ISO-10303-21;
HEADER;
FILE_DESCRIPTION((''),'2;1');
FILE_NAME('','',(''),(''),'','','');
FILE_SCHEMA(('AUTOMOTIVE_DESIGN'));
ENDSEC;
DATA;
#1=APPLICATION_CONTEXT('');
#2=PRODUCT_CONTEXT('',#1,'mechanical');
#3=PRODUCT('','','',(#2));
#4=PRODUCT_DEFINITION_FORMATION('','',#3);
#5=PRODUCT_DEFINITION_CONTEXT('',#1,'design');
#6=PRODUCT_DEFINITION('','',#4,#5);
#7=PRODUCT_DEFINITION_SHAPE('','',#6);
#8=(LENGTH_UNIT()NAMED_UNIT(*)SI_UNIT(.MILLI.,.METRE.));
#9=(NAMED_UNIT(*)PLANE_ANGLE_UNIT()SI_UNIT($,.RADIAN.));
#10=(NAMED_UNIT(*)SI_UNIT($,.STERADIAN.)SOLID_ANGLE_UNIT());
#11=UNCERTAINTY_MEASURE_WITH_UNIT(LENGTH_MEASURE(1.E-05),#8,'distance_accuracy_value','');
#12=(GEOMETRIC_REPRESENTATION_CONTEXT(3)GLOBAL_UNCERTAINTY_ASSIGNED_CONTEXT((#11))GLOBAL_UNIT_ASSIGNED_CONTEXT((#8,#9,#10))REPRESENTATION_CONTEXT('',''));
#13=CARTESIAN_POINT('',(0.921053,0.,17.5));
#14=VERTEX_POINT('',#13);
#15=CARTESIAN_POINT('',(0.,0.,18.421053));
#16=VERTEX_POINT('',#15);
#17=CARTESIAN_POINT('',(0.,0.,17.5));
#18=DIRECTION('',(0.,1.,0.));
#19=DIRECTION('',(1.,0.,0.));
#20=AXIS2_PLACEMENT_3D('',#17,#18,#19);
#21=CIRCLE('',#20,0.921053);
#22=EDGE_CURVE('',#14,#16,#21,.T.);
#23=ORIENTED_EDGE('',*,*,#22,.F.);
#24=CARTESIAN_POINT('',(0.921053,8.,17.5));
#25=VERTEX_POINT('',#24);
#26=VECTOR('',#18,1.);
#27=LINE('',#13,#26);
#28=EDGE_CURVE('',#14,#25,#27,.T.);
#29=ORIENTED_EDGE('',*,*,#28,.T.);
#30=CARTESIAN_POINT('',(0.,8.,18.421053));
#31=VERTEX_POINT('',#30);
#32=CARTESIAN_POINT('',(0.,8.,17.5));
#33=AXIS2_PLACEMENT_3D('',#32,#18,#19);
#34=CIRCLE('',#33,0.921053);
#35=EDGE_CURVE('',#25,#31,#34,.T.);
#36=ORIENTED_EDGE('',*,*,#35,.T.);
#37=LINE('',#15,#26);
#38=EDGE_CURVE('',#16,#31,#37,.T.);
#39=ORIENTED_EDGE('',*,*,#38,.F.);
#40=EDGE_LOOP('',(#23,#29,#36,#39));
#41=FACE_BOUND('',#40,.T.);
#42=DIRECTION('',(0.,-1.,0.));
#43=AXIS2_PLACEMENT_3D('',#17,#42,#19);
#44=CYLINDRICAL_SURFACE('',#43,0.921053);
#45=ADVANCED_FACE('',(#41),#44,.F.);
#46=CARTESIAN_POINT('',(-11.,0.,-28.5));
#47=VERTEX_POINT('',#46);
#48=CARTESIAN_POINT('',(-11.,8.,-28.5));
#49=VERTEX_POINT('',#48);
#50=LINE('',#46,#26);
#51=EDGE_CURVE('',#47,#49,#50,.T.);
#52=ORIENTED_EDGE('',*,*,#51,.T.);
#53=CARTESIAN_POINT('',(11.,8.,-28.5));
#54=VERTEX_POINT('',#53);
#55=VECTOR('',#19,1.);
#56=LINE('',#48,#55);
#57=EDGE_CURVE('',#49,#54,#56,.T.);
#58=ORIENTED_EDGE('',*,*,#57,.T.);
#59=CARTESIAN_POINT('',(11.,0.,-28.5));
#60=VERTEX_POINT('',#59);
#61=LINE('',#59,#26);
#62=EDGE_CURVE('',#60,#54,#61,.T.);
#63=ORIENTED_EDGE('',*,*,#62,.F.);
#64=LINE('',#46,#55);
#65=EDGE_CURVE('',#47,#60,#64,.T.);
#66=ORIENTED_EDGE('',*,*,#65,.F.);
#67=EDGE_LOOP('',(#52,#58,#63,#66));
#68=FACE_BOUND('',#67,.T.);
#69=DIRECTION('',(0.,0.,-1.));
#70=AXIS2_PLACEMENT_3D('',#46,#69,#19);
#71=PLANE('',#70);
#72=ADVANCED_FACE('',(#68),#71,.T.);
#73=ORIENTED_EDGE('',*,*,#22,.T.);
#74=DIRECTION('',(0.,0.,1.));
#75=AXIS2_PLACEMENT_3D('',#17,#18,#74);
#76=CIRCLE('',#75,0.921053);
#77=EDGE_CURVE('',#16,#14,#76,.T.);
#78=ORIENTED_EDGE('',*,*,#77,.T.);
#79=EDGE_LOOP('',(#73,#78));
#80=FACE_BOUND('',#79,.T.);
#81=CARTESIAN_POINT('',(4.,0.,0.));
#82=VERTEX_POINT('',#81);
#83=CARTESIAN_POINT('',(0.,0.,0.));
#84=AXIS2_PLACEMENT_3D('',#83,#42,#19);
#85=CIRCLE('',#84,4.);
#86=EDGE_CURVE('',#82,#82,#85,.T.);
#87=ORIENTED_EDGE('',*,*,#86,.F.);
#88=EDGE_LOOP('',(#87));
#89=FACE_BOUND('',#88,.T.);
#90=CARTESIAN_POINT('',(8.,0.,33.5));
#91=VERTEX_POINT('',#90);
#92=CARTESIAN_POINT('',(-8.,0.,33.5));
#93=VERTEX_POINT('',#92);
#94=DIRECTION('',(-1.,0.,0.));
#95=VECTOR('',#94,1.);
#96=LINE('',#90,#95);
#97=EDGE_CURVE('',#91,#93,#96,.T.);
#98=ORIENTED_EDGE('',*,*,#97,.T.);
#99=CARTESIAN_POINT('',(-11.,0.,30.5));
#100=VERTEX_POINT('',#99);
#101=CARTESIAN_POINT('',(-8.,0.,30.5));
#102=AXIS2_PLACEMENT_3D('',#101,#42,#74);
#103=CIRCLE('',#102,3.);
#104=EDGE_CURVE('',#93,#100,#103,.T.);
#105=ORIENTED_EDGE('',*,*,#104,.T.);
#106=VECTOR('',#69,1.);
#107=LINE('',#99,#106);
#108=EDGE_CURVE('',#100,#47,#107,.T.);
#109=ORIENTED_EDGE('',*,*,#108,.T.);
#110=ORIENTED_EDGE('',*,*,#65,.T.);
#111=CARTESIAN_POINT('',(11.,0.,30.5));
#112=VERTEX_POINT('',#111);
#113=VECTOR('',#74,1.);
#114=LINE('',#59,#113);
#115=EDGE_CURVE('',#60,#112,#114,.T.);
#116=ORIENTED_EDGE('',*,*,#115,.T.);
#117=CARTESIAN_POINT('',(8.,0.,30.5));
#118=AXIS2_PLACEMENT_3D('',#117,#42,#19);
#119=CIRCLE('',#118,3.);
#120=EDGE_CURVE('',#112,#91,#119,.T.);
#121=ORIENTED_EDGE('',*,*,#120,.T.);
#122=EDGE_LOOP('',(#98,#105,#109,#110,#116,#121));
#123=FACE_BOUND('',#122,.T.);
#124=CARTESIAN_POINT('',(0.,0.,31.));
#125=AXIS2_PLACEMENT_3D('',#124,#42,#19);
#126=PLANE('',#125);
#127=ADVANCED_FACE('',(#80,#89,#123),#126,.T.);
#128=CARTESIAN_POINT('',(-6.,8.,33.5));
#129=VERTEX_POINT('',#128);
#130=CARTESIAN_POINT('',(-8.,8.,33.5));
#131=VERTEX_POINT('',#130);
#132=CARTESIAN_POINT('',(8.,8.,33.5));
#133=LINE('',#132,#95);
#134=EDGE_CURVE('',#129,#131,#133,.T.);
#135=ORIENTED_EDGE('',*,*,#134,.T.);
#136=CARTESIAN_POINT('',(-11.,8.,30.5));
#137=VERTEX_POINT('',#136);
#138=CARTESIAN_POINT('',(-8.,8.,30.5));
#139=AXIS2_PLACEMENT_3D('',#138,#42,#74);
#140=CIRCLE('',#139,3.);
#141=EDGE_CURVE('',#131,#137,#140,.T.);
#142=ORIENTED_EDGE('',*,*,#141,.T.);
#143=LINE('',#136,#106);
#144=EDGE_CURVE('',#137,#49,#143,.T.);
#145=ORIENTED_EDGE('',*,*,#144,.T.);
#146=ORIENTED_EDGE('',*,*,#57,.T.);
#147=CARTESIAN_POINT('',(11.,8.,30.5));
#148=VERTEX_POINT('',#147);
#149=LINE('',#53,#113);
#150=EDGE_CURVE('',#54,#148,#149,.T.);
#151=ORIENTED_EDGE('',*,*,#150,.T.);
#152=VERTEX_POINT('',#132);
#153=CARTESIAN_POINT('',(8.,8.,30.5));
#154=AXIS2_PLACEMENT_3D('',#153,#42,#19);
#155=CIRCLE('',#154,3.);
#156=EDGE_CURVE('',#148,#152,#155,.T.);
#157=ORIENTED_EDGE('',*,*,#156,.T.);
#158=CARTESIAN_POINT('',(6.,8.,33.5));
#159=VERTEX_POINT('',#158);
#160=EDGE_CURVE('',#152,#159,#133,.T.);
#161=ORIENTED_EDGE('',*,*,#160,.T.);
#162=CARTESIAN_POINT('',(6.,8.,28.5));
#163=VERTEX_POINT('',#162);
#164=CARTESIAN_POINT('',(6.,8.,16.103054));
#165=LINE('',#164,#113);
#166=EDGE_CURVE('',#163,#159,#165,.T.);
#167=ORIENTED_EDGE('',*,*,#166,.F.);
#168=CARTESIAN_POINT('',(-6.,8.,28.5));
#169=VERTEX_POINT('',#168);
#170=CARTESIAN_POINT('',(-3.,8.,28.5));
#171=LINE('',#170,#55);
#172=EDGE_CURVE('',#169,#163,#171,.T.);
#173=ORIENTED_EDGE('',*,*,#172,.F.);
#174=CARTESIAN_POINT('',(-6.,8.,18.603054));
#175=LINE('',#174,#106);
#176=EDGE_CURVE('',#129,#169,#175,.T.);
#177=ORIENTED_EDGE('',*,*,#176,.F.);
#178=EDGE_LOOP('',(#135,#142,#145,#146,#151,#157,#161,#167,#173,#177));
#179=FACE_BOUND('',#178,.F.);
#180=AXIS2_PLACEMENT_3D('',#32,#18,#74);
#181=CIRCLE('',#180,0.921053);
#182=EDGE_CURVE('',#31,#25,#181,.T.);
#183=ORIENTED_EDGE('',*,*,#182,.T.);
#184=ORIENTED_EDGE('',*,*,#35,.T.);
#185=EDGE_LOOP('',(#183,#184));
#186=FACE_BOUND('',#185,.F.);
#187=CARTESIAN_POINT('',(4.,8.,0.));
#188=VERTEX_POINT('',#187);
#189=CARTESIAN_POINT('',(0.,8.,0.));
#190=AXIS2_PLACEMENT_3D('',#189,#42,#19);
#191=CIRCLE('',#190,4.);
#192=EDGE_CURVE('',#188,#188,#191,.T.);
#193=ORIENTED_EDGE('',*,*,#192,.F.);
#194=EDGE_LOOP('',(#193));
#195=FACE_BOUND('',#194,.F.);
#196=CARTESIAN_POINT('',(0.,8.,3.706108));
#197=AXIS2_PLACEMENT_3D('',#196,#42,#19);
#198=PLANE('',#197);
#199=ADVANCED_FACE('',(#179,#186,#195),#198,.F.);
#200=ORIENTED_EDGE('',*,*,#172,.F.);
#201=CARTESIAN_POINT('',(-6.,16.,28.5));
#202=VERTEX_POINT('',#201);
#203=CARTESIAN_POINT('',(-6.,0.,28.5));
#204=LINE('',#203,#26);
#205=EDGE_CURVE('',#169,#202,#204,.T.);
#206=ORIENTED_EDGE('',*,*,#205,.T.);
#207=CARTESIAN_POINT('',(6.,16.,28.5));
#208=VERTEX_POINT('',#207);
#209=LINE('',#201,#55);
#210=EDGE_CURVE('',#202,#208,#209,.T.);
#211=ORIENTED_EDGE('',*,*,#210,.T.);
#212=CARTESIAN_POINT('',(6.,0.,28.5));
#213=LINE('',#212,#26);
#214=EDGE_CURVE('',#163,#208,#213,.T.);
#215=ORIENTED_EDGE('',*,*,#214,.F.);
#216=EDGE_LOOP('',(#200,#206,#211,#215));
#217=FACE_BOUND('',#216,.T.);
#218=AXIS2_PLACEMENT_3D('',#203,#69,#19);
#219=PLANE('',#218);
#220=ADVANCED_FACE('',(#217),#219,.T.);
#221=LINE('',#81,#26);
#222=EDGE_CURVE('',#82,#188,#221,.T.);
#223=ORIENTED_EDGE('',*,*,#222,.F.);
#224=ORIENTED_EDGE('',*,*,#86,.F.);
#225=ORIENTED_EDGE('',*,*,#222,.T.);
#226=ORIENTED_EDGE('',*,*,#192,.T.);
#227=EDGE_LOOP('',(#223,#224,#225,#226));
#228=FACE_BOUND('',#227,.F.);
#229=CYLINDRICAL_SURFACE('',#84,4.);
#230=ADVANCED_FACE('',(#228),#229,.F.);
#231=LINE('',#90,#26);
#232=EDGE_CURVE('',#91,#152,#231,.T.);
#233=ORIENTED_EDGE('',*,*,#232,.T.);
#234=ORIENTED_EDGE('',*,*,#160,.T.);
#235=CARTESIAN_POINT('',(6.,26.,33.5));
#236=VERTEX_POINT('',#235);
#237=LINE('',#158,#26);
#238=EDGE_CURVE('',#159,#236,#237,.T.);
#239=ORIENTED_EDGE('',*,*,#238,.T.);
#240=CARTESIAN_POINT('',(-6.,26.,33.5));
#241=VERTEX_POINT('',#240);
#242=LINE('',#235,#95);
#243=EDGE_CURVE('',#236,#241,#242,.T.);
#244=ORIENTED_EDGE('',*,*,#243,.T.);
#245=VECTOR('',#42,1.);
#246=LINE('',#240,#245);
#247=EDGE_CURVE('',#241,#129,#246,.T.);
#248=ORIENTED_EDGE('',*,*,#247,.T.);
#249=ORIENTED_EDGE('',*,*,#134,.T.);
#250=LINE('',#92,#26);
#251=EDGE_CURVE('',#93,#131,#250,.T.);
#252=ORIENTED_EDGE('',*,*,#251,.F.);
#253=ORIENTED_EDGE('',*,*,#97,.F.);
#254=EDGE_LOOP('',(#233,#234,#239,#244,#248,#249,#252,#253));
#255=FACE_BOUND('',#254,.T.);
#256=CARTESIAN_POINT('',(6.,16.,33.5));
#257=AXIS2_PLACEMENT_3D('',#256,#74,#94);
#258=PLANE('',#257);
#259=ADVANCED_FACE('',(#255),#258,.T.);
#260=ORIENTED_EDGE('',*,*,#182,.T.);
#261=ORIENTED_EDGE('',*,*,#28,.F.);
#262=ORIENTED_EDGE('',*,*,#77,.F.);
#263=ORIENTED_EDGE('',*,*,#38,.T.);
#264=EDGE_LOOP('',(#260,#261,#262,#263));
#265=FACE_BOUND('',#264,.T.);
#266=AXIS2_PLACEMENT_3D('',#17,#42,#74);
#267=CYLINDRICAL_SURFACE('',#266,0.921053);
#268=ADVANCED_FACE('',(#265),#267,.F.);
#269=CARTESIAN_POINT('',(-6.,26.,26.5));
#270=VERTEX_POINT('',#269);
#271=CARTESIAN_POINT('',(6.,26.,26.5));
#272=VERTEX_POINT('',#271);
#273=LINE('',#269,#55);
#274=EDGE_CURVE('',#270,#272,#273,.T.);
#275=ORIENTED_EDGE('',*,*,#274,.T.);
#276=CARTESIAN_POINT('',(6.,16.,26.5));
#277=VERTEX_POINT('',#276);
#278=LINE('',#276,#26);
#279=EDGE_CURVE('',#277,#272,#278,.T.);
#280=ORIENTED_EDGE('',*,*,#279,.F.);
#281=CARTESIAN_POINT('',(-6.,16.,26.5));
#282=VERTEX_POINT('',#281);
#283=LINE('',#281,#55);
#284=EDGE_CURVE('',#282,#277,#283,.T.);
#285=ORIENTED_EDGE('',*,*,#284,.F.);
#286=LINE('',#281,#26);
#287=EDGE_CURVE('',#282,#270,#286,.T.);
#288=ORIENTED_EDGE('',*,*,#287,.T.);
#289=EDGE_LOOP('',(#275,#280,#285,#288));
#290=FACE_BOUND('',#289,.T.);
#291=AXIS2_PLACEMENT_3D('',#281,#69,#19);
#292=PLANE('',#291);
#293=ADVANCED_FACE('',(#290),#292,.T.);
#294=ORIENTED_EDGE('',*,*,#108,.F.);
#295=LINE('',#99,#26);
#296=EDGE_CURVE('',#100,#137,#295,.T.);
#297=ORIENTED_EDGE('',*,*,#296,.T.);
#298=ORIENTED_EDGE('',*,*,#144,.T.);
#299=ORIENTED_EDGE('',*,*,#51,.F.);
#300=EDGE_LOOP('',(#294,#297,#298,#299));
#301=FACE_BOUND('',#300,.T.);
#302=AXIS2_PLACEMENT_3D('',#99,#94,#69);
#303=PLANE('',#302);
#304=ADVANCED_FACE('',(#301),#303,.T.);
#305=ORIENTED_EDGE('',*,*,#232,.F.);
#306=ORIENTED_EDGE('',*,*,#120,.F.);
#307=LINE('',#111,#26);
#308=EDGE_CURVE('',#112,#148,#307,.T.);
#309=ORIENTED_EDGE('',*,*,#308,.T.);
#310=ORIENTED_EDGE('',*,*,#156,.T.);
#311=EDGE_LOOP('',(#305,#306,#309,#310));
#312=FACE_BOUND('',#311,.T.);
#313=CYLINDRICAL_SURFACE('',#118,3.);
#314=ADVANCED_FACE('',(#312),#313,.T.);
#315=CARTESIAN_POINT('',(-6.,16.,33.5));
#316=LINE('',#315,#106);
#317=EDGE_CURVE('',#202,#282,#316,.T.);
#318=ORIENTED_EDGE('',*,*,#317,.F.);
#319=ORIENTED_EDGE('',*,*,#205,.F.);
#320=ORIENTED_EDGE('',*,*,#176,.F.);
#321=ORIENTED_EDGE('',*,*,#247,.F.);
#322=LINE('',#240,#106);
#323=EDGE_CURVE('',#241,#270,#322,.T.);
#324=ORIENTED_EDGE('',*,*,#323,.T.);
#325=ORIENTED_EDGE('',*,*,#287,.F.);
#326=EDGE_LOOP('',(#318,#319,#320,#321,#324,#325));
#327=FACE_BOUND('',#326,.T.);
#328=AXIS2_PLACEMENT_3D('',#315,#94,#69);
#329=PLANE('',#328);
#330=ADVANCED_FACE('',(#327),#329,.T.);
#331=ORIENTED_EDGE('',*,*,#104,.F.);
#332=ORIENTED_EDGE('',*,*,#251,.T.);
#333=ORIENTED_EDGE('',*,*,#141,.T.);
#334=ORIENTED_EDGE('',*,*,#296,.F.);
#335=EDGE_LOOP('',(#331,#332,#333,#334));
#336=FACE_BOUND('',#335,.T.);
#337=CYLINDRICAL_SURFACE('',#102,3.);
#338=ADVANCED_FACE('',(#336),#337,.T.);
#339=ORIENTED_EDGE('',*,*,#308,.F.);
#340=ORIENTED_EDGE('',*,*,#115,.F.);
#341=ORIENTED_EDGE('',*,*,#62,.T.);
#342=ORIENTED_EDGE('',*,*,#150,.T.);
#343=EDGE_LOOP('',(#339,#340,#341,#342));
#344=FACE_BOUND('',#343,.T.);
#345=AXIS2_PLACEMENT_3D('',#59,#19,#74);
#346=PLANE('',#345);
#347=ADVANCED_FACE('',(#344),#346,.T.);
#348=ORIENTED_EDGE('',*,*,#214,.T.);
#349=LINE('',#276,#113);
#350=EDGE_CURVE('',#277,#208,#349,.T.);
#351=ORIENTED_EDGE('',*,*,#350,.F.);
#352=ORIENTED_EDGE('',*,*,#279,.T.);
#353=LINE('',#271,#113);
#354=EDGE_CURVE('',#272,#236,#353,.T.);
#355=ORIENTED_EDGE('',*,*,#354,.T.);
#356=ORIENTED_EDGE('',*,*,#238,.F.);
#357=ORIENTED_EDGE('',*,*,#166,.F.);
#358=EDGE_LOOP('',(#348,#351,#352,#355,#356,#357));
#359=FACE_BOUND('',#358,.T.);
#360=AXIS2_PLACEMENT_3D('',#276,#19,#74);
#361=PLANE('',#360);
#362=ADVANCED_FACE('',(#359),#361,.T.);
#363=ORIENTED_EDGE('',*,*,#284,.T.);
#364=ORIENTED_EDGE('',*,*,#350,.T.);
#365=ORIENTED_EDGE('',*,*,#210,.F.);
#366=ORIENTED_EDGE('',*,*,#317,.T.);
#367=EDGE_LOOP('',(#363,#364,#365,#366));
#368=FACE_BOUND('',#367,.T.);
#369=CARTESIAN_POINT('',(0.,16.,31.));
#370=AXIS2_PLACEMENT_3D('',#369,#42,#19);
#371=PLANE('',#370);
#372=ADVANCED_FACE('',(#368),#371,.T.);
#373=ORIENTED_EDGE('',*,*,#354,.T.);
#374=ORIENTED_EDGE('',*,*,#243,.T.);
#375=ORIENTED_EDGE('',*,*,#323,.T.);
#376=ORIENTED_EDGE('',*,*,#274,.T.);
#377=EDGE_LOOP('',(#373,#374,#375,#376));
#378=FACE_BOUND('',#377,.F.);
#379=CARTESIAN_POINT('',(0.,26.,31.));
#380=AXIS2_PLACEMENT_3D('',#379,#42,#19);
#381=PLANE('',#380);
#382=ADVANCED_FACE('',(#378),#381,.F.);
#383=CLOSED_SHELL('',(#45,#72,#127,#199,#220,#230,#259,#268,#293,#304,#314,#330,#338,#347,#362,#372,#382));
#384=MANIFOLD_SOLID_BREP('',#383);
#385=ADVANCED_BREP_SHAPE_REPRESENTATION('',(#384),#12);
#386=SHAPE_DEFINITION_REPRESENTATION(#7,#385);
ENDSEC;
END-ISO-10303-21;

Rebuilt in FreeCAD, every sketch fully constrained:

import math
import FreeCAD as App
import Part
import Sketcher

V = App.Vector
Q = App.Units.Quantity

doc = App.newDocument("Part")
body = doc.addObject("PartDesign::Body", "Body")

# Sketch on XZ plane
sketch1 = body.newObject("Sketcher::SketchObject", "Sketch")
sketch1.AttachmentSupport = (doc.getObject("XZ_Plane"), [""])
sketch1.MapMode = "FlatFace"
sketch1.addGeometry(Part.LineSegment(V(11, -28.5, 0), V(11, 30.5, 0)), False)
sketch1.addGeometry(Part.ArcOfCircle(Part.Circle(V(8, 30.5, 0), V(0, 0, 1), 3), math.radians(0), math.radians(90)), False)
sketch1.addGeometry(Part.LineSegment(V(8, 33.5, 0), V(-8, 33.5, 0)), False)
sketch1.addGeometry(Part.ArcOfCircle(Part.Circle(V(-8, 30.5, 0), V(0, 0, 1), 3), math.radians(90), math.radians(180)), False)
sketch1.addGeometry(Part.LineSegment(V(-11, 30.5, 0), V(-11, -28.5, 0)), False)
sketch1.addGeometry(Part.LineSegment(V(-11, -28.5, 0), V(11, -28.5, 0)), False)
sketch1.addGeometry(Part.Circle(V(0, 0, 0), V(0, 0, 1), 4), False)
sketch1.addGeometry(Part.ArcOfCircle(Part.Circle(V(0, 17.5, 0), V(0, 0, 1), 0.921053), math.radians(90), math.radians(360)), False)
sketch1.addGeometry(Part.ArcOfCircle(Part.Circle(V(0, 17.5, 0), V(0, 0, 1), 0.921053), math.radians(0), math.radians(90)), False)
sketch1.addConstraint(Sketcher.Constraint("Tangent", 0, 2, 1, 1))
sketch1.addConstraint(Sketcher.Constraint("Tangent", 1, 2, 2, 1))
sketch1.addConstraint(Sketcher.Constraint("Tangent", 2, 2, 3, 1))
sketch1.addConstraint(Sketcher.Constraint("Tangent", 3, 2, 4, 1))
sketch1.addConstraint(Sketcher.Constraint("Coincident", 4, 2, 5, 1))
sketch1.addConstraint(Sketcher.Constraint("Coincident", 5, 2, 0, 1))
sketch1.addConstraint(Sketcher.Constraint("Tangent", 7, 1, 8, 2))
sketch1.addConstraint(Sketcher.Constraint("Coincident", 8, 1, 7, 2))
sketch1.addConstraint(Sketcher.Constraint("Vertical", 0))
sketch1.addConstraint(Sketcher.Constraint("Horizontal", 2))
sketch1.addConstraint(Sketcher.Constraint("Vertical", 4))
sketch1.addConstraint(Sketcher.Constraint("Horizontal", 5))
sketch1.addConstraint(Sketcher.Constraint("Coincident", 6, 3, -1, 1))
sketch1.addConstraint(Sketcher.Constraint("Equal", 1, 3))
sketch1.addConstraint(Sketcher.Constraint("PointOnObject", 7, 3, -2))
sketch1.addConstraint(Sketcher.Constraint("PointOnObject", 7, 1, -2))
sketch1.addConstraint(Sketcher.Constraint("Horizontal", 7, 3, 8, 1))
sketch1.addConstraint(Sketcher.Constraint("Diameter", 6, Q("8 mm")))
sketch1.addConstraint(Sketcher.Constraint("Radius", 1, Q("3 mm")))
sketch1.addConstraint(Sketcher.Constraint("DistanceX", 2, 2, 2, 1, Q("16 mm")))
sketch1.addConstraint(Sketcher.Constraint("DistanceY", 0, 1, 0, 2, Q("59 mm")))
sketch1.addConstraint(Sketcher.Constraint("DistanceX", -1, 1, 1, 3, Q("8 mm")))
sketch1.addConstraint(Sketcher.Constraint("DistanceY", 7, 3, 1, 3, Q("13 mm")))
sketch1.addConstraint(Sketcher.Constraint("DistanceY", -1, 1, 1, 3, Q("30.5 mm")))
sketch1.addConstraint(Sketcher.Constraint("Radius", 7, Q("0.921053 mm")))
pad1 = body.newObject("PartDesign::Pad", "Pad")
pad1.Profile = sketch1
pad1.Length = 8
pad1.Reversed = True

# Sketch on XZ plane
sketch2 = body.newObject("Sketcher::SketchObject", "Sketch001")
sketch2.AttachmentSupport = (doc.getObject("XZ_Plane"), [""])
sketch2.MapMode = "FlatFace"
sketch2.addGeometry(Part.LineSegment(V(6, 28.5, 0), V(6, 33.5, 0)), False)
sketch2.addGeometry(Part.LineSegment(V(6, 33.5, 0), V(-6, 33.5, 0)), False)
sketch2.addGeometry(Part.LineSegment(V(-6, 33.5, 0), V(-6, 28.5, 0)), False)
sketch2.addGeometry(Part.LineSegment(V(-6, 28.5, 0), V(6, 28.5, 0)), False)
sketch2.addConstraint(Sketcher.Constraint("Coincident", 0, 2, 1, 1))
sketch2.addConstraint(Sketcher.Constraint("Coincident", 1, 2, 2, 1))
sketch2.addConstraint(Sketcher.Constraint("Coincident", 2, 2, 3, 1))
sketch2.addConstraint(Sketcher.Constraint("Coincident", 3, 2, 0, 1))
sketch2.addConstraint(Sketcher.Constraint("Vertical", 0))
sketch2.addConstraint(Sketcher.Constraint("Horizontal", 1))
sketch2.addConstraint(Sketcher.Constraint("Vertical", 2))
sketch2.addConstraint(Sketcher.Constraint("Horizontal", 3))
sketch2.addConstraint(Sketcher.Constraint("DistanceX", 1, 2, 1, 1, Q("12 mm")))
sketch2.addConstraint(Sketcher.Constraint("DistanceY", 0, 1, 0, 2, Q("5 mm")))
sketch2.addConstraint(Sketcher.Constraint("DistanceX", -1, 1, 0, 2, Q("6 mm")))
sketch2.addConstraint(Sketcher.Constraint("DistanceY", -1, 1, 0, 2, Q("33.5 mm")))
pad2 = body.newObject("PartDesign::Pad", "Pad001")
pad2.Profile = sketch2
pad2.Length = 16
pad2.Reversed = True

# Sketch on XZ plane
sketch3 = body.newObject("Sketcher::SketchObject", "Sketch002")
sketch3.AttachmentSupport = (doc.getObject("XZ_Plane"), [""])
sketch3.MapMode = "FlatFace"
sketch3.AttachmentOffset = App.Placement(V(0, 0, -16), App.Rotation())
sketch3.addGeometry(Part.LineSegment(V(6, 33.5, 0), V(-6, 33.5, 0)), False)
sketch3.addGeometry(Part.LineSegment(V(-6, 33.5, 0), V(-6, 26.5, 0)), False)
sketch3.addGeometry(Part.LineSegment(V(-6, 26.5, 0), V(6, 26.5, 0)), False)
sketch3.addGeometry(Part.LineSegment(V(6, 26.5, 0), V(6, 33.5, 0)), False)
sketch3.addConstraint(Sketcher.Constraint("Coincident", 0, 2, 1, 1))
sketch3.addConstraint(Sketcher.Constraint("Coincident", 1, 2, 2, 1))
sketch3.addConstraint(Sketcher.Constraint("Coincident", 2, 2, 3, 1))
sketch3.addConstraint(Sketcher.Constraint("Coincident", 3, 2, 0, 1))
sketch3.addConstraint(Sketcher.Constraint("Horizontal", 0))
sketch3.addConstraint(Sketcher.Constraint("Vertical", 1))
sketch3.addConstraint(Sketcher.Constraint("Horizontal", 2))
sketch3.addConstraint(Sketcher.Constraint("Vertical", 3))
sketch3.addConstraint(Sketcher.Constraint("DistanceX", 0, 2, 0, 1, Q("12 mm")))
sketch3.addConstraint(Sketcher.Constraint("DistanceY", 1, 2, 1, 1, Q("7 mm")))
sketch3.addConstraint(Sketcher.Constraint("DistanceX", 0, 2, -1, 1, Q("6 mm")))
sketch3.addConstraint(Sketcher.Constraint("DistanceY", -1, 1, 0, 2, Q("33.5 mm")))
pad3 = body.newObject("PartDesign::Pad", "Pad002")
pad3.Profile = sketch3
pad3.Length = 10
pad3.Reversed = True

doc.recompute()
